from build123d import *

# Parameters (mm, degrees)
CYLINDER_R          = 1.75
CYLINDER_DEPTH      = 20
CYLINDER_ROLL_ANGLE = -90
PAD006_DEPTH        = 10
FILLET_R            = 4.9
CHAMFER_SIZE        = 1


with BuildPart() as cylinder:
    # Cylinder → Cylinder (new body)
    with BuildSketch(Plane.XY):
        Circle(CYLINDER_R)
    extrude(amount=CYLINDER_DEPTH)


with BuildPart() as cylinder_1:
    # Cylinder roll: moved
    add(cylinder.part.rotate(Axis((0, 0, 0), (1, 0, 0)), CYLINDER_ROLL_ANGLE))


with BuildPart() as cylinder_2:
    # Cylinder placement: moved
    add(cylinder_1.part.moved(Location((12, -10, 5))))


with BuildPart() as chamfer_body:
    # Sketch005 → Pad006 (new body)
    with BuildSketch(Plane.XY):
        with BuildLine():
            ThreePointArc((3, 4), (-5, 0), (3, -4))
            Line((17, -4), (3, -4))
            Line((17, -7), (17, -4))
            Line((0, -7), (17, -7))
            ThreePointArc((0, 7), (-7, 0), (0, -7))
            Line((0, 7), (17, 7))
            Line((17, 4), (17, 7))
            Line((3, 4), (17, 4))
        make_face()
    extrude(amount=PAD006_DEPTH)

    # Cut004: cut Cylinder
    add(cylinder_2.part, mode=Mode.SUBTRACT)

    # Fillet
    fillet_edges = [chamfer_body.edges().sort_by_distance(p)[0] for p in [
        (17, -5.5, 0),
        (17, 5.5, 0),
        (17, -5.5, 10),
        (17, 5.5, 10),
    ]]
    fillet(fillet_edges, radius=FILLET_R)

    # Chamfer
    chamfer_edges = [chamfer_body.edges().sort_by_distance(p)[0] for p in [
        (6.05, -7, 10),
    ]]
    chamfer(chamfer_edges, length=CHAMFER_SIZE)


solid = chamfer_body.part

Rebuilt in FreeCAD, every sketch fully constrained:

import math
import FreeCAD as App
import Part
import Sketcher
from FreeCAD import Vector


def edges_at(feature, points):
    """Names of the edges that pass closest to the given points."""
    edges = feature.Shape.Edges
    near = lambda p: min(range(len(edges)), key=lambda i: edges[i].distToShape(Part.Vertex(*p))[0])
    return sorted({f"Edge{near(p) + 1}" for p in points})

doc = App.newDocument("Part")
body = doc.addObject("PartDesign::Body", "Body")

# Sketch on XY plane
sketch1 = body.newObject("Sketcher::SketchObject", "Sketch")
sketch1.AttachmentSupport = (doc.getObject("XY_Plane"), [""])
sketch1.MapMode = "FlatFace"
sketch1.addGeometry(Part.Circle(Vector(0, 0, 0), Vector(0, 0, 1), 1.8), False)
sketch1.addConstraint(Sketcher.Constraint("Coincident", 0, 3, -1, 1))
sketch1.addConstraint(Sketcher.Constraint("Diameter", 0, 3.5))
pad1 = body.newObject("PartDesign::Pad", "Pad")
pad1.Profile = sketch1
pad1.Length = 20
body2 = doc.addObject("PartDesign::Body", "Body001")
doc.recompute()

body.Placement = App.Placement(Vector(0, 0, 0), App.Rotation(Vector(1, 0, 0), 270))
boolean = body2.newObject("PartDesign::Boolean", "Boolean")
boolean.Type = "Fuse"
boolean.addObjects([body])
body3 = doc.addObject("PartDesign::Body", "Body002")
doc.recompute()

body2.Placement = App.Placement(Vector(12, -10, 5), App.Rotation(Vector(0, 0, 1), 0))
boolean2 = body3.newObject("PartDesign::Boolean", "Boolean001")
boolean2.Type = "Fuse"
boolean2.addObjects([body2])
body4 = doc.addObject("PartDesign::Body", "Body003")

# Sketch on XY plane
sketch2 = body4.newObject("Sketcher::SketchObject", "Sketch001")
sketch2.AttachmentSupport = (doc.getObject("XY_Plane003"), [""])
sketch2.MapMode = "FlatFace"
sketch2.addGeometry(Part.ArcOfCircle(Part.Circle(Vector(0, 0, 0), Vector(0, 0, 1), 5), math.radians(53), math.radians(307)), False)
sketch2.addGeometry(Part.LineSegment(Vector(3, 4, 0), Vector(17, 4, 0)), False)
sketch2.addGeometry(Part.LineSegment(Vector(17, 4, 0), Vector(17, 7, 0)), False)
sketch2.addGeometry(Part.LineSegment(Vector(17, 7, 0), Vector(0, 7, 0)), False)
sketch2.addGeometry(Part.ArcOfCircle(Part.Circle(Vector(0, 0, 0), Vector(0, 0, 1), 7), math.radians(90), math.radians(270)), False)
sketch2.addGeometry(Part.LineSegment(Vector(0, -7, 0), Vector(17, -7, 0)), False)
sketch2.addGeometry(Part.LineSegment(Vector(17, -7, 0), Vector(17, -4, 0)), False)
sketch2.addGeometry(Part.LineSegment(Vector(17, -4, 0), Vector(3, -4, 0)), False)
sketch2.addConstraint(Sketcher.Constraint("Coincident", 0, 1, 1, 1))
sketch2.addConstraint(Sketcher.Constraint("Coincident", 1, 2, 2, 1))
sketch2.addConstraint(Sketcher.Constraint("Coincident", 2, 2, 3, 1))
sketch2.addConstraint(Sketcher.Constraint("Tangent", 3, 2, 4, 1))
sketch2.addConstraint(Sketcher.Constraint("Tangent", 4, 2, 5, 1))
sketch2.addConstraint(Sketcher.Constraint("Coincident", 5, 2, 6, 1))
sketch2.addConstraint(Sketcher.Constraint("Coincident", 6, 2, 7, 1))
sketch2.addConstraint(Sketcher.Constraint("Coincident", 7, 2, 0, 2))
sketch2.addConstraint(Sketcher.Constraint("Horizontal", 1))
sketch2.addConstraint(Sketcher.Constraint("Vertical", 2))
sketch2.addConstraint(Sketcher.Constraint("Horizontal", 3))
sketch2.addConstraint(Sketcher.Constraint("Horizontal", 5))
sketch2.addConstraint(Sketcher.Constraint("Vertical", 6))
sketch2.addConstraint(Sketcher.Constraint("Horizontal", 7))
sketch2.addConstraint(Sketcher.Constraint("Coincident", 0, 3, -1, 1))
sketch2.addConstraint(Sketcher.Constraint("Coincident", 4, 3, -1, 1))
sketch2.addConstraint(Sketcher.Constraint("Symmetric", 1, 2, 6, 2, -1))
sketch2.addConstraint(Sketcher.Constraint("Radius", 0, 5.0))
sketch2.addConstraint(Sketcher.Constraint("Radius", 4, 7.0))
sketch2.addConstraint(Sketcher.Constraint("DistanceX", 1, 1, 1, 2, 14.0))
sketch2.addConstraint(Sketcher.Constraint("DistanceX", 3, 2, 3, 1, 17.0))
pad2 = body4.newObject("PartDesign::Pad", "Pad001")
pad2.Profile = sketch2
pad2.Length = 10
doc.recompute()

boolean3 = body4.newObject("PartDesign::Boolean", "Boolean002")
boolean3.Type = "Cut"
boolean3.addObjects([body3])
doc.recompute()

fillet = body4.newObject("PartDesign::Fillet", "Fillet")
fillet.Base = (boolean3, edges_at(boolean3, [
    (17, -5.5, 0),
    (17, 5.5, 0),
    (17, -5.5, 10),
    (17, 5.5, 10),
]))
fillet.Radius = 4.9
doc.recompute()

chamfer = body4.newObject("PartDesign::Chamfer", "Chamfer")
chamfer.Base = (fillet, edges_at(fillet, [(6.05, -7, 10)]))
chamfer.Size = 1

doc.recompute()
